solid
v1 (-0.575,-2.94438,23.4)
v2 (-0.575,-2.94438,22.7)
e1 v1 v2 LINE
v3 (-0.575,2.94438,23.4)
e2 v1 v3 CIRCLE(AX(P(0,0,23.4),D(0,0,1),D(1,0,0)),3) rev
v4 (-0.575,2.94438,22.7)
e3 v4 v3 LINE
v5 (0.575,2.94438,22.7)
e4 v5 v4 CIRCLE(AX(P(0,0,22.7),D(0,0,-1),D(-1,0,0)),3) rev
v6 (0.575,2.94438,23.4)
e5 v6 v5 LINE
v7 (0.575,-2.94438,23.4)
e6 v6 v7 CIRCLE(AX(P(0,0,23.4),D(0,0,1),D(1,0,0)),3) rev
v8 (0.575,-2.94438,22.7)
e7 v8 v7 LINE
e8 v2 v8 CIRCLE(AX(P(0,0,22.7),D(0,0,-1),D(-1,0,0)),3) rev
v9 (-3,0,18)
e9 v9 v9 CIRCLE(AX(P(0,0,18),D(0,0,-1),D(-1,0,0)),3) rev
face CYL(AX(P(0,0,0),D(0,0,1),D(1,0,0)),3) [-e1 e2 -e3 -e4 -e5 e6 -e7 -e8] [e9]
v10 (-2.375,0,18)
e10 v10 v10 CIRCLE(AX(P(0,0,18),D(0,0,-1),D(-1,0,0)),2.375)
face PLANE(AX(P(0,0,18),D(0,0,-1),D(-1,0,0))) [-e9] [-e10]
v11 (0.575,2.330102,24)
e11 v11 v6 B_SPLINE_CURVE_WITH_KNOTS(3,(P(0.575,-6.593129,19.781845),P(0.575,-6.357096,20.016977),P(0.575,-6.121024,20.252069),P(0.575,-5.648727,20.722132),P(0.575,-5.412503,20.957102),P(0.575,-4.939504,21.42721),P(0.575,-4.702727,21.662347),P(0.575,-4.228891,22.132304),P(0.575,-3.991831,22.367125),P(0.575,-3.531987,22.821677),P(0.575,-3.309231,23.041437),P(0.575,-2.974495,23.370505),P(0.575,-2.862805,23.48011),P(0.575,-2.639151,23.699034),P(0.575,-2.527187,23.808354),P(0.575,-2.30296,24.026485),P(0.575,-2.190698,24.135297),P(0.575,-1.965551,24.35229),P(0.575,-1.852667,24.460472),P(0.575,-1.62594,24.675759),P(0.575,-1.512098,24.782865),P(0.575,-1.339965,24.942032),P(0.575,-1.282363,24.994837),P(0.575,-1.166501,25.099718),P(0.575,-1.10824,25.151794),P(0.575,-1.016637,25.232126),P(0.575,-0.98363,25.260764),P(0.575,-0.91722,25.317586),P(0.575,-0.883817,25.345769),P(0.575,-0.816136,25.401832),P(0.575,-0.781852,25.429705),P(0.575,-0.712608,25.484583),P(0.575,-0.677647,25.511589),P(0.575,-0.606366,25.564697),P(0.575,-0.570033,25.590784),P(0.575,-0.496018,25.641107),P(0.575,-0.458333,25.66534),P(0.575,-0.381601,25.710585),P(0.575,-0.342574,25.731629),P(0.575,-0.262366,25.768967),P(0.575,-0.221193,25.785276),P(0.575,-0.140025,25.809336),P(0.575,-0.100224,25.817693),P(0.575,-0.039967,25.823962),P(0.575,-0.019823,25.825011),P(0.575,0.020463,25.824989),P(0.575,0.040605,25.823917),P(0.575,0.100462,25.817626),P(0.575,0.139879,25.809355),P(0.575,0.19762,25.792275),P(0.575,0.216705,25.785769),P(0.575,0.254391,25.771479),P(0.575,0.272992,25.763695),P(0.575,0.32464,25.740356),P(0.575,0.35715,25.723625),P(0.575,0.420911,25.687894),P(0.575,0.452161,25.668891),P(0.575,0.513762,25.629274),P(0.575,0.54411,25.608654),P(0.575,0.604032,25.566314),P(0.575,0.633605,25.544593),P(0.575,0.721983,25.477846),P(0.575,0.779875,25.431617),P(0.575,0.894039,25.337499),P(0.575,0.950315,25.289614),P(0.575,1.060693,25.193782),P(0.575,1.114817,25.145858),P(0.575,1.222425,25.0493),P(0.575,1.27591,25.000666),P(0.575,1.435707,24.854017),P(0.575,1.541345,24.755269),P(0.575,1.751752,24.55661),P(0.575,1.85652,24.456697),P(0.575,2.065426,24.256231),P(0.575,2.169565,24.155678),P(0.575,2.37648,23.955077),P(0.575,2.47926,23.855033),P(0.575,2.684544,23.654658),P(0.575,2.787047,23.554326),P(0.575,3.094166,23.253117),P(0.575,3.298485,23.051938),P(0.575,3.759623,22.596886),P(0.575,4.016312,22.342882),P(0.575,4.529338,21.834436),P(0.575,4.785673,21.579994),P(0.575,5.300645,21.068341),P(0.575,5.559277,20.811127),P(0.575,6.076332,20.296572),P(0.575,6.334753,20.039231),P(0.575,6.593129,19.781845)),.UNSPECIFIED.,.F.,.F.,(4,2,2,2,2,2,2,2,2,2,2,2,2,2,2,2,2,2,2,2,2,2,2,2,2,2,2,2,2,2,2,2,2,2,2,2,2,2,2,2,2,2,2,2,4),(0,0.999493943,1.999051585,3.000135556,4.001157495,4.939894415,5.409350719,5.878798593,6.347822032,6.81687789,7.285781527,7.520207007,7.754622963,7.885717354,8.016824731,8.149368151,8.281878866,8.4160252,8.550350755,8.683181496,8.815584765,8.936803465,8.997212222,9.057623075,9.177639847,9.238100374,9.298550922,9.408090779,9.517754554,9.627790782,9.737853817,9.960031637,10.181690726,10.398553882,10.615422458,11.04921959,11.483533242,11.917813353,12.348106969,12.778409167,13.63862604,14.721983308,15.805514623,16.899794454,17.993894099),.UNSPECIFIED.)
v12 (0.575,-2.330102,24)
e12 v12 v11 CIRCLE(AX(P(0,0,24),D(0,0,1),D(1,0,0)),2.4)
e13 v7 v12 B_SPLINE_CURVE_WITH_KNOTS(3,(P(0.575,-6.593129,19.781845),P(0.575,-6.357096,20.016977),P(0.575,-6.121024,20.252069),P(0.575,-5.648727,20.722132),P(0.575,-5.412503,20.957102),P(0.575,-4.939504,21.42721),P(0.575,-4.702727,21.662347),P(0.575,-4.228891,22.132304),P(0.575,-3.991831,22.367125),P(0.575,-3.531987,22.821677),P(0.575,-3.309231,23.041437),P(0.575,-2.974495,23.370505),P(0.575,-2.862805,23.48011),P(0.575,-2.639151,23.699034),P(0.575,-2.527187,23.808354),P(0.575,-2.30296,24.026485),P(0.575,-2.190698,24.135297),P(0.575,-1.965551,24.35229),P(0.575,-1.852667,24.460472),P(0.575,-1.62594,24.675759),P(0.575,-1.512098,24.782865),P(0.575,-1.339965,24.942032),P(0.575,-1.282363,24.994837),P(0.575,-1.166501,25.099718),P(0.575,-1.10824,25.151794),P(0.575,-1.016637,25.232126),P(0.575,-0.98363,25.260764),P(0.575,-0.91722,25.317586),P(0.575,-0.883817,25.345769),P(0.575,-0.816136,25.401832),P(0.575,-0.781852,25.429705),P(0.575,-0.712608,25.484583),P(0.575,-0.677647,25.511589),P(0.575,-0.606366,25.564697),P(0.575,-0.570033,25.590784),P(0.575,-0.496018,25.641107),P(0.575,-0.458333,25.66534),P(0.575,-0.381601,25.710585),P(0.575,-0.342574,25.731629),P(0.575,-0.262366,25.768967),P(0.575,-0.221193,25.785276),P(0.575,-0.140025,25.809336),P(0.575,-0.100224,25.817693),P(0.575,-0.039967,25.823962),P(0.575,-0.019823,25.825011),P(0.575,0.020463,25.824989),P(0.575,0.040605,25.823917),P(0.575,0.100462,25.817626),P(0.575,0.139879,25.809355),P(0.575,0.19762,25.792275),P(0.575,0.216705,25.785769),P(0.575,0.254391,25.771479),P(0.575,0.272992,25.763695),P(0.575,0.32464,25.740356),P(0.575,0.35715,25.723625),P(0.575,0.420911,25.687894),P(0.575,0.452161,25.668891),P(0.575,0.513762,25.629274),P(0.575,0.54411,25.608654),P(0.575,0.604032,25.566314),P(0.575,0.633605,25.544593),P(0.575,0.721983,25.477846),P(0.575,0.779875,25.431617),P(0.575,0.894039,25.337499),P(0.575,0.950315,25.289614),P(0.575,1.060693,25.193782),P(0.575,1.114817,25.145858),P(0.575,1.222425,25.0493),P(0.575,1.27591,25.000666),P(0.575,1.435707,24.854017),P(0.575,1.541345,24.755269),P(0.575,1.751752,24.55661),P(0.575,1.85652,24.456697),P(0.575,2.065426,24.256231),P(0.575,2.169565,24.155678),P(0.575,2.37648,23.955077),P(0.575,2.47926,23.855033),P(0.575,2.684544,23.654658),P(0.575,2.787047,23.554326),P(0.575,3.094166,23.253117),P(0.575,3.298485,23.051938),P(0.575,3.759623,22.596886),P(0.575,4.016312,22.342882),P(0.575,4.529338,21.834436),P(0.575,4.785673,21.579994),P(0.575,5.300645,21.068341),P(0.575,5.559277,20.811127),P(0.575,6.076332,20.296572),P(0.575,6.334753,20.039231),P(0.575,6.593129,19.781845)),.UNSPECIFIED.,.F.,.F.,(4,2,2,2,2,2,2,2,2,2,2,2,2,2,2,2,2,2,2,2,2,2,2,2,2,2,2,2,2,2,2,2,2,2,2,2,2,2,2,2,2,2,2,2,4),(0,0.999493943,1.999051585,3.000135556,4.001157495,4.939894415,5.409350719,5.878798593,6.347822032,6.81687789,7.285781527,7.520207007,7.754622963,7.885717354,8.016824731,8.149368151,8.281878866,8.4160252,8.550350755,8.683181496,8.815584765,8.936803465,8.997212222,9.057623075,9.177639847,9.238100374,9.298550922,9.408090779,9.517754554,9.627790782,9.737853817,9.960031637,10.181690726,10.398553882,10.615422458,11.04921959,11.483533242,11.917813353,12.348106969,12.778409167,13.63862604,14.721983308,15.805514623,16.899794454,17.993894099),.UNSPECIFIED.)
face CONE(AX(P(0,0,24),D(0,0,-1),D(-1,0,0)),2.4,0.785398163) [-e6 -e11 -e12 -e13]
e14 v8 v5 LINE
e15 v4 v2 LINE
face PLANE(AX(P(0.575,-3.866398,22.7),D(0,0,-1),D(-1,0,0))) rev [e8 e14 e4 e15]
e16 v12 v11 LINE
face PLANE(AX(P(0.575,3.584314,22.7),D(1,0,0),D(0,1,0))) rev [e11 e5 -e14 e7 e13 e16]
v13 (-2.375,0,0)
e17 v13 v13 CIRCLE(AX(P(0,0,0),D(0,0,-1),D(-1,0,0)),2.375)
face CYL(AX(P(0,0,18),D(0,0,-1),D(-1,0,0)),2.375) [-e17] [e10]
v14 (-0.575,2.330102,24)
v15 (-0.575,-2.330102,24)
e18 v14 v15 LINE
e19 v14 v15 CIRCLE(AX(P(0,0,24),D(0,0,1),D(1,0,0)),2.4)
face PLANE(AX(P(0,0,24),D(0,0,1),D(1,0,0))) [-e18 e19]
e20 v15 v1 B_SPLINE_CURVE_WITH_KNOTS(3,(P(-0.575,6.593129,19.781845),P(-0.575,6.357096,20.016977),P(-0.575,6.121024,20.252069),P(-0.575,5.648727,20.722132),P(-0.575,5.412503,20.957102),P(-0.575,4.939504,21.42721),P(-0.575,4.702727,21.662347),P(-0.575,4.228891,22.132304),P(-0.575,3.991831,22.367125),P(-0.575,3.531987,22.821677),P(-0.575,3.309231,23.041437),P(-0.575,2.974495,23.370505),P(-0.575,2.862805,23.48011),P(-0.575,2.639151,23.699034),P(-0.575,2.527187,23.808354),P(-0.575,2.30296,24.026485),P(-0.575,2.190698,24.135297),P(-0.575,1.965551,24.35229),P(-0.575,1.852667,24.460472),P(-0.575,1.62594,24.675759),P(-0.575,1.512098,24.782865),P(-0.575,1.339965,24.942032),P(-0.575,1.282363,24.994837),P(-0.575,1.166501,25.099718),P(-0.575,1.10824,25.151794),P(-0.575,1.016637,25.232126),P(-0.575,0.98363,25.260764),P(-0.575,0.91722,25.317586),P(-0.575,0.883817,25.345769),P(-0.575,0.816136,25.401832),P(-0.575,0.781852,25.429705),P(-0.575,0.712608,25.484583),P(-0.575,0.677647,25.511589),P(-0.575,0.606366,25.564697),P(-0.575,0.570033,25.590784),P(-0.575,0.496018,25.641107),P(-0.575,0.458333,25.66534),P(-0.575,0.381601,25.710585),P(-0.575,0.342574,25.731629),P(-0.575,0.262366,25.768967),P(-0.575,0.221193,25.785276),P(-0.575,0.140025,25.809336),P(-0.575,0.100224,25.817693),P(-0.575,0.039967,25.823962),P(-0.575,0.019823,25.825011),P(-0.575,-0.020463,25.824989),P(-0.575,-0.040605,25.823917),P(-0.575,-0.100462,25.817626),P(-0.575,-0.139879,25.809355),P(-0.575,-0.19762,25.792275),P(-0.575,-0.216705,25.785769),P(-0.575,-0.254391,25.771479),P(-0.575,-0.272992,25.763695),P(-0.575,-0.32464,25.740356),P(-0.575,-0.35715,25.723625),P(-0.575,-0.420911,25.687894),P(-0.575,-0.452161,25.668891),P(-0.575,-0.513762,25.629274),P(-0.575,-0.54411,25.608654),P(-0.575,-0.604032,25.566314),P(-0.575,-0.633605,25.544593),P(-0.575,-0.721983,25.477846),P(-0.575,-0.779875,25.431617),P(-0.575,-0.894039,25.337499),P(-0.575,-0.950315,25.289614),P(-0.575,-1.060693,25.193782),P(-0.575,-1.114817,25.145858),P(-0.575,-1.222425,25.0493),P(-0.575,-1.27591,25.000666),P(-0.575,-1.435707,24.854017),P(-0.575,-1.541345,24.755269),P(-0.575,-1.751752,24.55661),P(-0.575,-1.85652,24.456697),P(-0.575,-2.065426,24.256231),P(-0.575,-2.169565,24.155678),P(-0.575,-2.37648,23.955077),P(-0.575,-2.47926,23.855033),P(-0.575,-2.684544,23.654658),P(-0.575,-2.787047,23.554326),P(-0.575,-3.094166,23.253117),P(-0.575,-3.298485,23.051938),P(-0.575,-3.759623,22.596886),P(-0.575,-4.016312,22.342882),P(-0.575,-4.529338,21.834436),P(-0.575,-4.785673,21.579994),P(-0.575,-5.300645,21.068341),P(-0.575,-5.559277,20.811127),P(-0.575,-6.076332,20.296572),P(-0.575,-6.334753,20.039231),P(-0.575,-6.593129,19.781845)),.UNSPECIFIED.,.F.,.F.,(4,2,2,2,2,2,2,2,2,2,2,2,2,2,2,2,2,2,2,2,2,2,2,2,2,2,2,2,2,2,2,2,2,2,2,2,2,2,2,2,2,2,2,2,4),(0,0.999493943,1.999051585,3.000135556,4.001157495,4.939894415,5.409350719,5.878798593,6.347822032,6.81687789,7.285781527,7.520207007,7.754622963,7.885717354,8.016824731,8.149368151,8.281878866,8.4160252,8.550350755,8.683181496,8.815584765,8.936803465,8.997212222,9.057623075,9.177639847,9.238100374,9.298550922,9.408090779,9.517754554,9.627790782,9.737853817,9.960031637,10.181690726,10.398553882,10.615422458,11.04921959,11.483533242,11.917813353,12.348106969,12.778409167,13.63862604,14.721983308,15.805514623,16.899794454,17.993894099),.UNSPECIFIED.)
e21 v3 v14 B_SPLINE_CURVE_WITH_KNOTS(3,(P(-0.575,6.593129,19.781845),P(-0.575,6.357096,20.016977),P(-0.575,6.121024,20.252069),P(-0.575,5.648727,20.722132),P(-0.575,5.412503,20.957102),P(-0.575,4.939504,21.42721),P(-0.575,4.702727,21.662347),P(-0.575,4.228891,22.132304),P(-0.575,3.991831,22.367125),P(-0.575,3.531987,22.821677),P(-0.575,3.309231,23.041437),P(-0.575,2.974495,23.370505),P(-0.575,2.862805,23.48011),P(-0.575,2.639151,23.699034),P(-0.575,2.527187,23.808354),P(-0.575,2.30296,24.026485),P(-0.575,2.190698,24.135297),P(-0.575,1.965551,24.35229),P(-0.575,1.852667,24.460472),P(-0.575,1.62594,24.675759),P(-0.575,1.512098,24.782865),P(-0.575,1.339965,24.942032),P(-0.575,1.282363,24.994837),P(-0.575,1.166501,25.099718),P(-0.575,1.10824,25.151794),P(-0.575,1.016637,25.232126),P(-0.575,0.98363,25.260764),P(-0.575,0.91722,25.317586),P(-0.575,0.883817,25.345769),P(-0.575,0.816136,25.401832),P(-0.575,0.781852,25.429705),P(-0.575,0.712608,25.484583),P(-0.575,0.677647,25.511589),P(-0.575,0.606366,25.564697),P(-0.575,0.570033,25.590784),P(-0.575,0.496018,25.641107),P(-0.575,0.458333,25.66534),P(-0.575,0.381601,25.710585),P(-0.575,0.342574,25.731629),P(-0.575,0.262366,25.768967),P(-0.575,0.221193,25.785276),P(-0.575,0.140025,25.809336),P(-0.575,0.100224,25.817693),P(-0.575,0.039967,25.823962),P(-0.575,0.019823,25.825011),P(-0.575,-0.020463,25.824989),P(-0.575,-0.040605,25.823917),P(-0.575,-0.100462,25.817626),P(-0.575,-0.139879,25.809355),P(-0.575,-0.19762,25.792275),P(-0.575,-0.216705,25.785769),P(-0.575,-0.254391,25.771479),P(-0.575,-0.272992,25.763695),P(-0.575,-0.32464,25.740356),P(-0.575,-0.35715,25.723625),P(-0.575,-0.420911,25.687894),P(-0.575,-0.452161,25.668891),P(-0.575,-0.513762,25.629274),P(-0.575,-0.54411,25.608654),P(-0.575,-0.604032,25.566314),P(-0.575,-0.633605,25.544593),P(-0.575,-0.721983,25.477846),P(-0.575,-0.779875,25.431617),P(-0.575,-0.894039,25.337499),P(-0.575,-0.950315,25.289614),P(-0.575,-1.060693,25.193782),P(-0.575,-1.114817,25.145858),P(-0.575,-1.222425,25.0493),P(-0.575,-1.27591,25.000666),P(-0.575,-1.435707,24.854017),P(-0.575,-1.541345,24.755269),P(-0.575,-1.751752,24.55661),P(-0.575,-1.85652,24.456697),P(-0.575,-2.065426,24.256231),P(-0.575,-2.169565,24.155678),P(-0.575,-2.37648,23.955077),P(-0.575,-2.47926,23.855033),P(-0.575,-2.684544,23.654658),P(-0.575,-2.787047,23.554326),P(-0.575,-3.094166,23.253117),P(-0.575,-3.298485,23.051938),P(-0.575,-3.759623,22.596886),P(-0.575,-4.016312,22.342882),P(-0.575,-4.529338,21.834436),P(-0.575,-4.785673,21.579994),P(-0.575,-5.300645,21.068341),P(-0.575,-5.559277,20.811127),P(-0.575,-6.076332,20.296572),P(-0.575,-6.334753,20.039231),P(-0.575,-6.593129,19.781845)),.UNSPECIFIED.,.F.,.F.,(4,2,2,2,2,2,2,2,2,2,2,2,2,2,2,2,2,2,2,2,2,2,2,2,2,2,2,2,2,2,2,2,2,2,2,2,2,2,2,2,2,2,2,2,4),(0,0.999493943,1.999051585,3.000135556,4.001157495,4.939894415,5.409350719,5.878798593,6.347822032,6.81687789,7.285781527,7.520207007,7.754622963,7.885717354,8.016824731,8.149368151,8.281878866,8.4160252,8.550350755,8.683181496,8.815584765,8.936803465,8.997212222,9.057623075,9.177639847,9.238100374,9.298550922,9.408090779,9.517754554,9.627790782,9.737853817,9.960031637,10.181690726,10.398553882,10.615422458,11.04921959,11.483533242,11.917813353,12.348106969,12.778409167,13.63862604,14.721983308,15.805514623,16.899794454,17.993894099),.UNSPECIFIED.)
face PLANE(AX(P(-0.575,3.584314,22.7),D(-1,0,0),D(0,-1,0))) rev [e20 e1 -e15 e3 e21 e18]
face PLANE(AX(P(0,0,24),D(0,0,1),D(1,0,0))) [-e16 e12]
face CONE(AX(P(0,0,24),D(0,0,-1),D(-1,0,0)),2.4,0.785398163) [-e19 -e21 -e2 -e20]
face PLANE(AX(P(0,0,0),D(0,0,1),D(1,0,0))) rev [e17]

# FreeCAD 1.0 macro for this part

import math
import FreeCAD as App
import Part
import Sketcher

V = App.Vector
Q = App.Units.Quantity


def edges_at(feature, points):
    """Names of the edges that pass closest to the given points."""
    edges = feature.Shape.Edges
    near = lambda p: min(range(len(edges)), key=lambda i: edges[i].distToShape(Part.Vertex(*p))[0])
    return sorted({f"Edge{near(p) + 1}" for p in points})

doc = App.newDocument("Part")
body = doc.addObject("PartDesign::Body", "Body")

# Sketch on XZ plane
sketch1 = body.newObject("Sketcher::SketchObject", "Sketch")
sketch1.AttachmentSupport = (doc.getObject("XZ_Plane"), [""])
sketch1.MapMode = "FlatFace"
sketch1.addGeometry([
    Part.LineSegment(V(0, 0, 0), V(3.5, 0, 0)),  # 0
    Part.LineSegment(V(3.5, 0, 0), V(3.5, -3.6, 0)),  # 1
    Part.ArcOfCircle(Part.Circle(V(3.1, -3.6, 0), V(0, 0, 1), 0.4), math.radians(-90), math.radians(0)),  # 2
    Part.LineSegment(V(3.1, -4, 0), V(0, -4, 0)),  # 3
    Part.LineSegment(V(0, -4, 0), V(0, 0, 0)),  # 4
], False)
sketch1.addConstraint([
    Sketcher.Constraint("Coincident", 0, 2, 1, 1),
    Sketcher.Constraint("Tangent", 1, 2, 2, 2),
    Sketcher.Constraint("Tangent", 2, 1, 3, 1),
    Sketcher.Constraint("Coincident", 3, 2, 4, 1),
    Sketcher.Constraint("Coincident", 4, 2, 0, 1),
    Sketcher.Constraint("Horizontal", 0),
    Sketcher.Constraint("Vertical", 1),
    Sketcher.Constraint("Horizontal", 3),
    Sketcher.Constraint("Vertical", 4),
    Sketcher.Constraint("Coincident", 4, 2, -1, 1),
    Sketcher.Constraint("Radius", 2, Q("0.4 mm")),
    Sketcher.Constraint("DistanceY", 4, 1, 4, 2, Q("4 mm")),
    Sketcher.Constraint("DistanceX", 0, 1, 0, 2, Q("3.5 mm")),
])
revolution = body.newObject("PartDesign::Revolution", "Revolution")
revolution.Profile = sketch1
revolution.ReferenceAxis = (sketch1, ["V_Axis"])
revolution.Angle = 360

# Sketch on XZ plane
sketch2 = body.newObject("Sketcher::SketchObject", "Sketch001")
sketch2.AttachmentSupport = (doc.getObject("XZ_Plane"), [""])
sketch2.MapMode = "FlatFace"
sketch2.addGeometry([
    Part.LineSegment(V(0, 0, 0), V(0, 24, 0)),
    Part.LineSegment(V(0, 24, 0), V(3, 24, 0)),
    Part.LineSegment(V(3, 24, 0), V(3, 0, 0)),
    Part.LineSegment(V(3, 0, 0), V(0, 0, 0)),
], False)
sketch2.addConstraint([
    Sketcher.Constraint("Coincident", 0, 2, 1, 1),
    Sketcher.Constraint("Coincident", 1, 2, 2, 1),
    Sketcher.Constraint("Coincident", 2, 2, 3, 1),
    Sketcher.Constraint("Coincident", 3, 2, 0, 1),
    Sketcher.Constraint("Vertical", 0),
    Sketcher.Constraint("Horizontal", 1),
    Sketcher.Constraint("Vertical", 2),
    Sketcher.Constraint("Horizontal", 3),
    Sketcher.Constraint("Coincident", 3, 2, -1, 1),
    Sketcher.Constraint("DistanceX", 1, 1, 1, 2, Q("3 mm")),
    Sketcher.Constraint("DistanceY", 0, 1, 0, 2, Q("24 mm")),
])
revolution2 = body.newObject("PartDesign::Revolution", "Revolution001")
revolution2.Profile = sketch2
revolution2.ReferenceAxis = (sketch2, ["V_Axis"])
revolution2.Angle = 360
doc.recompute()

chamfer = body.newObject("PartDesign::Chamfer", "Chamfer")
chamfer.Base = (revolution2, edges_at(revolution2, [(-3, 0, 24)]))
chamfer.Size = 0.6

# Sketch on XY plane
sketch3 = body.newObject("Sketcher::SketchObject", "Sketch002")
sketch3.AttachmentSupport = (doc.getObject("XY_Plane"), [""])
sketch3.MapMode = "FlatFace"
sketch3.addGeometry(Part.Circle(V(0, 0, 0), V(0, 0, 1), 3.5), False)
sketch3.addConstraint([
    Sketcher.Constraint("Coincident", 0, 3, -1, 1),
    Sketcher.Constraint("Diameter", 0, Q("7 mm")),
])
pocket1 = body.newObject("PartDesign::Pocket", "Pocket")
pocket1.Profile = sketch3
pocket1.Type = "ThroughAll"

# Sketch on XY plane
sketch4 = body.newObject("Sketcher::SketchObject", "Sketch003")
sketch4.AttachmentSupport = (doc.getObject("XY_Plane"), [""])
sketch4.MapMode = "FlatFace"
sketch4.addGeometry([
    Part.LineSegment(V(6.546, 6.546, 0), V(6.546, -6.546, 0)),  # 0
    Part.LineSegment(V(6.546, -6.546, 0), V(-6.546, -6.546, 0)),  # 1
    Part.LineSegment(V(-6.546, -6.546, 0), V(-6.546, 6.546, 0)),  # 2
    Part.LineSegment(V(-6.546, 6.546, 0), V(6.546, 6.546, 0)),  # 3
    Part.Circle(V(0, 0, 0), V(0, 0, 1), 2.375),  # 4
], False)
sketch4.addConstraint([
    Sketcher.Constraint("Coincident", 0, 2, 1, 1),
    Sketcher.Constraint("Coincident", 1, 2, 2, 1),
    Sketcher.Constraint("Coincident", 2, 2, 3, 1),
    Sketcher.Constraint("Coincident", 3, 2, 0, 1),
    Sketcher.Constraint("Vertical", 0),
    Sketcher.Constraint("Horizontal", 1),
    Sketcher.Constraint("Vertical", 2),
    Sketcher.Constraint("Horizontal", 3),
    Sketcher.Constraint("Coincident", 4, 3, -1, 1),
    Sketcher.Constraint("Symmetric", 0, 2, 2, 2, -1, 1),
    Sketcher.Constraint("Equal", 3, 0),
    Sketcher.Constraint("Diameter", 4, Q("4.75 mm")),
    Sketcher.Constraint("DistanceX", 1, 2, 1, 1, Q("13.092 mm")),
])
pocket2 = body.newObject("PartDesign::Pocket", "Pocket001")
pocket2.Profile = sketch4
pocket2.Length = 18
pocket2.Reversed = True

# Sketch on XY plane
sketch5 = body.newObject("Sketcher::SketchObject", "Sketch004")
sketch5.AttachmentSupport = (doc.getObject("XY_Plane"), [""])
sketch5.MapMode = "FlatFace"
sketch5.AttachmentOffset = App.Placement(V(0, 0, 24), App.Rotation())
sketch5.addGeometry([
    Part.LineSegment(V(-0.575, 3.584314, 0), V(-0.575, -3.866398, 0)),
    Part.LineSegment(V(-0.575, -3.866398, 0), V(0.575, -3.866398, 0)),
    Part.LineSegment(V(0.575, -3.866398, 0), V(0.575, 3.584314, 0)),
    Part.LineSegment(V(0.575, 3.584314, 0), V(-0.575, 3.584314, 0)),
], False)
sketch5.addConstraint([
    Sketcher.Constraint("Coincident", 0, 2, 1, 1),
    Sketcher.Constraint("Coincident", 1, 2, 2, 1),
    Sketcher.Constraint("Coincident", 2, 2, 3, 1),
    Sketcher.Constraint("Coincident", 3, 2, 0, 1),
    Sketcher.Constraint("Vertical", 0),
    Sketcher.Constraint("Horizontal", 1),
    Sketcher.Constraint("Vertical", 2),
    Sketcher.Constraint("Horizontal", 3),
    Sketcher.Constraint("DistanceX", 1, 1, 1, 2, Q("1.15 mm")),
    Sketcher.Constraint("DistanceX", 0, 2, -1, 1, Q("0.575 mm")),
    Sketcher.Constraint("DistanceY", 0, 2, 0, 1, Q("7.450712 mm")),
    Sketcher.Constraint("DistanceY", 0, 2, -1, 1, Q("3.866398 mm")),
])
pocket3 = body.newObject("PartDesign::Pocket", "Pocket002")
pocket3.Profile = sketch5
pocket3.Length = 1.3

doc.recompute()
